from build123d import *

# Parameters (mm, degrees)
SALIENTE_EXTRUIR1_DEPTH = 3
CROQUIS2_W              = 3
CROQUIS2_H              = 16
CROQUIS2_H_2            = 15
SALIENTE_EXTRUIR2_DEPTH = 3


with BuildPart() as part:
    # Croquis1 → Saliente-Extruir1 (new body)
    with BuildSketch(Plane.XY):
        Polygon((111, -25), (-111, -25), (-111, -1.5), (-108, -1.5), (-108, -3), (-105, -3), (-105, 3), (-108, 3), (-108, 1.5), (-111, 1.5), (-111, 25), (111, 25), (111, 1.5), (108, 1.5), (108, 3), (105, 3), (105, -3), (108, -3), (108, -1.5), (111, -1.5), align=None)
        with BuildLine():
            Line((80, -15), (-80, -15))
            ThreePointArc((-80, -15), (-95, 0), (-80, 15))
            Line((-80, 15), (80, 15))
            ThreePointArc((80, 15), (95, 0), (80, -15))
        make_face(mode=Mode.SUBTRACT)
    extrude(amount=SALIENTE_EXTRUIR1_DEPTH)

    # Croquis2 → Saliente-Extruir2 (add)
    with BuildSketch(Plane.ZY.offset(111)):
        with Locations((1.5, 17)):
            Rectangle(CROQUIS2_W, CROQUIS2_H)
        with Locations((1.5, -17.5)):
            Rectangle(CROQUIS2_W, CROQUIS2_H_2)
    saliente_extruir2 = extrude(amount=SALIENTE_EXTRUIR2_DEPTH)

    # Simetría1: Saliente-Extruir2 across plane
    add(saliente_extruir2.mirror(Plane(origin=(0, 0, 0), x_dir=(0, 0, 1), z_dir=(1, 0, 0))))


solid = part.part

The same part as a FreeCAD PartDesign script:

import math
import FreeCAD as App
import Part
import Sketcher
from FreeCAD import Vector
Q = App.Units.Quantity

doc = App.newDocument("Part")
body = doc.addObject("PartDesign::Body", "Body")

# Sketch on XY plane
sketch1 = body.newObject("Sketcher::SketchObject", "Sketch")
sketch1.AttachmentSupport = (doc.getObject("XY_Plane"), [""])
sketch1.MapMode = "FlatFace"
sketch1.addGeometry([
    Part.LineSegment(Vector(-111, -25, 0), Vector(111, -25, 0)),  # 0
    Part.LineSegment(Vector(111, -25, 0), Vector(111, -1.5, 0)),  # 1
    Part.LineSegment(Vector(111, -1.5, 0), Vector(108, -1.5, 0)),  # 2
    Part.LineSegment(Vector(108, -1.5, 0), Vector(108, -3, 0)),  # 3
    Part.LineSegment(Vector(108, -3, 0), Vector(105, -3, 0)),  # 4
    Part.LineSegment(Vector(105, -3, 0), Vector(105, 3, 0)),  # 5
    Part.LineSegment(Vector(105, 3, 0), Vector(108, 3, 0)),  # 6
    Part.LineSegment(Vector(108, 3, 0), Vector(108, 1.5, 0)),  # 7
    Part.LineSegment(Vector(108, 1.5, 0), Vector(111, 1.5, 0)),  # 8
    Part.LineSegment(Vector(111, 1.5, 0), Vector(111, 25, 0)),  # 9
    Part.LineSegment(Vector(111, 25, 0), Vector(-111, 25, 0)),  # 10
    Part.LineSegment(Vector(-111, 25, 0), Vector(-111, 1.5, 0)),  # 11
    Part.LineSegment(Vector(-111, 1.5, 0), Vector(-108, 1.5, 0)),  # 12
    Part.LineSegment(Vector(-108, 1.5, 0), Vector(-108, 3, 0)),  # 13
    Part.LineSegment(Vector(-108, 3, 0), Vector(-105, 3, 0)),  # 14
    Part.LineSegment(Vector(-105, 3, 0), Vector(-105, -3, 0)),  # 15
    Part.LineSegment(Vector(-105, -3, 0), Vector(-108, -3, 0)),  # 16
    Part.LineSegment(Vector(-108, -3, 0), Vector(-108, -1.5, 0)),  # 17
    Part.LineSegment(Vector(-108, -1.5, 0), Vector(-111, -1.5, 0)),  # 18
    Part.LineSegment(Vector(-111, -1.5, 0), Vector(-111, -25, 0)),  # 19
    Part.LineSegment(Vector(80, -15, 0), Vector(-80, -15, 0)),  # 20
    Part.ArcOfCircle(Part.Circle(Vector(-80, 0, 0), Vector(0, 0, 1), 15), math.radians(90), math.radians(270)),  # 21
    Part.LineSegment(Vector(-80, 15, 0), Vector(80, 15, 0)),  # 22
    Part.ArcOfCircle(Part.Circle(Vector(80, 0, 0), Vector(0, 0, 1), 15), math.radians(-90), math.radians(90)),  # 23
], False)
sketch1.addConstraint([
    Sketcher.Constraint("Coincident", 0, 2, 1, 1),
    Sketcher.Constraint("Coincident", 1, 2, 2, 1),
    Sketcher.Constraint("Coincident", 2, 2, 3, 1),
    Sketcher.Constraint("Coincident", 3, 2, 4, 1),
    Sketcher.Constraint("Coincident", 4, 2, 5, 1),
    Sketcher.Constraint("Coincident", 5, 2, 6, 1),
    Sketcher.Constraint("Coincident", 6, 2, 7, 1),
    Sketcher.Constraint("Coincident", 7, 2, 8, 1),
    Sketcher.Constraint("Coincident", 8, 2, 9, 1),
    Sketcher.Constraint("Coincident", 9, 2, 10, 1),
    Sketcher.Constraint("Coincident", 10, 2, 11, 1),
    Sketcher.Constraint("Coincident", 11, 2, 12, 1),
    Sketcher.Constraint("Coincident", 12, 2, 13, 1),
    Sketcher.Constraint("Coincident", 13, 2, 14, 1),
    Sketcher.Constraint("Coincident", 14, 2, 15, 1),
    Sketcher.Constraint("Coincident", 15, 2, 16, 1),
    Sketcher.Constraint("Coincident", 16, 2, 17, 1),
    Sketcher.Constraint("Coincident", 17, 2, 18, 1),
    Sketcher.Constraint("Coincident", 18, 2, 19, 1),
    Sketcher.Constraint("Coincident", 19, 2, 0, 1),
    Sketcher.Constraint("Tangent", 20, 2, 21, 2),
    Sketcher.Constraint("Tangent", 21, 1, 22, 1),
    Sketcher.Constraint("Tangent", 22, 2, 23, 2),
    Sketcher.Constraint("Tangent", 23, 1, 20, 1),
    Sketcher.Constraint("Horizontal", 0),
    Sketcher.Constraint("Vertical", 1),
    Sketcher.Constraint("Horizontal", 2),
    Sketcher.Constraint("Vertical", 3),
    Sketcher.Constraint("Horizontal", 4),
    Sketcher.Constraint("Vertical", 5),
    Sketcher.Constraint("Horizontal", 6),
    Sketcher.Constraint("Vertical", 7),
    Sketcher.Constraint("Horizontal", 8),
    Sketcher.Constraint("Vertical", 9),
    Sketcher.Constraint("Horizontal", 10),
    Sketcher.Constraint("Vertical", 11),
    Sketcher.Constraint("Horizontal", 12),
    Sketcher.Constraint("Vertical", 13),
    Sketcher.Constraint("Horizontal", 14),
    Sketcher.Constraint("Vertical", 15),
    Sketcher.Constraint("Horizontal", 16),
    Sketcher.Constraint("Vertical", 17),
    Sketcher.Constraint("Horizontal", 18),
    Sketcher.Constraint("Vertical", 19),
    Sketcher.Constraint("Horizontal", 20),
    Sketcher.Constraint("Horizontal", 22),
    Sketcher.Constraint("Symmetric", 21, 3, 23, 3, -1, 1),
    Sketcher.Constraint("Symmetric", 0, 2, 10, 2, -1, 1),
    Sketcher.Constraint("Symmetric", 2, 2, 12, 2, -1, 1),
    Sketcher.Constraint("Symmetric", 4, 2, 14, 2, -1, 1),
    Sketcher.Constraint("Symmetric", 6, 2, 16, 2, -1, 1),
    Sketcher.Constraint("Symmetric", 8, 2, 18, 2, -1, 1),
    Sketcher.Constraint("Symmetric", 8, 2, 11, 2, -2),
    Sketcher.Constraint("Symmetric", 6, 2, 13, 2, -2),
    Sketcher.Constraint("Equal", 2, 4),
    Sketcher.Constraint("Radius", 21, Q("15 mm")),
    Sketcher.Constraint("DistanceX", 0, 1, 0, 2, Q("222 mm")),
    Sketcher.Constraint("DistanceX", 2, 2, 2, 1, Q("3 mm")),
    Sketcher.Constraint("DistanceX", 20, 2, 20, 1, Q("160 mm")),
    Sketcher.Constraint("DistanceY", 5, 1, 5, 2, Q("6 mm")),
    Sketcher.Constraint("DistanceY", 1, 1, 1, 2, Q("23.5 mm")),
    Sketcher.Constraint("DistanceY", 3, 2, 3, 1, Q("1.5 mm")),
])
pad1 = body.newObject("PartDesign::Pad", "Pad")
pad1.Profile = sketch1
pad1.Length = 3

# Sketch on YZ plane
sketch2 = body.newObject("Sketcher::SketchObject", "Sketch001")
sketch2.AttachmentSupport = (doc.getObject("YZ_Plane"), [""])
sketch2.MapMode = "FlatFace"
sketch2.AttachmentOffset = App.Placement(Vector(0, 0, -111), App.Rotation())
sketch2.addGeometry([
    Part.LineSegment(Vector(25, 0, 0), Vector(9, 0, 0)),  # 0
    Part.LineSegment(Vector(9, 0, 0), Vector(9, 3, 0)),  # 1
    Part.LineSegment(Vector(9, 3, 0), Vector(25, 3, 0)),  # 2
    Part.LineSegment(Vector(25, 3, 0), Vector(25, 0, 0)),  # 3
    Part.LineSegment(Vector(-10, 0, 0), Vector(-25, 0, 0)),  # 4
    Part.LineSegment(Vector(-25, 0, 0), Vector(-25, 3, 0)),  # 5
    Part.LineSegment(Vector(-25, 3, 0), Vector(-10, 3, 0)),  # 6
    Part.LineSegment(Vector(-10, 3, 0), Vector(-10, 0, 0)),  # 7
], False)
sketch2.addConstraint([
    Sketcher.Constraint("Coincident", 0, 2, 1, 1),
    Sketcher.Constraint("Coincident", 1, 2, 2, 1),
    Sketcher.Constraint("Coincident", 2, 2, 3, 1),
    Sketcher.Constraint("Coincident", 3, 2, 0, 1),
    Sketcher.Constraint("Coincident", 4, 2, 5, 1),
    Sketcher.Constraint("Coincident", 5, 2, 6, 1),
    Sketcher.Constraint("Coincident", 6, 2, 7, 1),
    Sketcher.Constraint("Coincident", 7, 2, 4, 1),
    Sketcher.Constraint("Horizontal", 0),
    Sketcher.Constraint("Vertical", 1),
    Sketcher.Constraint("Horizontal", 2),
    Sketcher.Constraint("Vertical", 3),
    Sketcher.Constraint("Horizontal", 4),
    Sketcher.Constraint("Vertical", 5),
    Sketcher.Constraint("Horizontal", 6),
    Sketcher.Constraint("Vertical", 7),
    Sketcher.Constraint("Symmetric", 3, 2, 4, 2, -1, 1),
    Sketcher.Constraint("PointOnObject", 0, 2, -1),
    Sketcher.Constraint("Horizontal", 2, 2, 5, 2),
    Sketcher.Constraint("DistanceX", 0, 2, 0, 1, Q("16 mm")),
    Sketcher.Constraint("DistanceX", 4, 2, 4, 1, Q("15 mm")),
    Sketcher.Constraint("DistanceY", 1, 1, 1, 2, Q("3 mm")),
    Sketcher.Constraint("DistanceX", -1, 1, 0, 2, Q("9 mm")),
])
pad2 = body.newObject("PartDesign::Pad", "Pad001")
pad2.Profile = sketch2
pad2.Length = 3
pad2.Reversed = True
doc.recompute()

mirrored = body.newObject("PartDesign::Mirrored", "Mirrored")
mirrored.Originals = [pad2]
mirrored.MirrorPlane = (doc.getObject("YZ_Plane"), [""])
body.Tip = mirrored

doc.recompute()
